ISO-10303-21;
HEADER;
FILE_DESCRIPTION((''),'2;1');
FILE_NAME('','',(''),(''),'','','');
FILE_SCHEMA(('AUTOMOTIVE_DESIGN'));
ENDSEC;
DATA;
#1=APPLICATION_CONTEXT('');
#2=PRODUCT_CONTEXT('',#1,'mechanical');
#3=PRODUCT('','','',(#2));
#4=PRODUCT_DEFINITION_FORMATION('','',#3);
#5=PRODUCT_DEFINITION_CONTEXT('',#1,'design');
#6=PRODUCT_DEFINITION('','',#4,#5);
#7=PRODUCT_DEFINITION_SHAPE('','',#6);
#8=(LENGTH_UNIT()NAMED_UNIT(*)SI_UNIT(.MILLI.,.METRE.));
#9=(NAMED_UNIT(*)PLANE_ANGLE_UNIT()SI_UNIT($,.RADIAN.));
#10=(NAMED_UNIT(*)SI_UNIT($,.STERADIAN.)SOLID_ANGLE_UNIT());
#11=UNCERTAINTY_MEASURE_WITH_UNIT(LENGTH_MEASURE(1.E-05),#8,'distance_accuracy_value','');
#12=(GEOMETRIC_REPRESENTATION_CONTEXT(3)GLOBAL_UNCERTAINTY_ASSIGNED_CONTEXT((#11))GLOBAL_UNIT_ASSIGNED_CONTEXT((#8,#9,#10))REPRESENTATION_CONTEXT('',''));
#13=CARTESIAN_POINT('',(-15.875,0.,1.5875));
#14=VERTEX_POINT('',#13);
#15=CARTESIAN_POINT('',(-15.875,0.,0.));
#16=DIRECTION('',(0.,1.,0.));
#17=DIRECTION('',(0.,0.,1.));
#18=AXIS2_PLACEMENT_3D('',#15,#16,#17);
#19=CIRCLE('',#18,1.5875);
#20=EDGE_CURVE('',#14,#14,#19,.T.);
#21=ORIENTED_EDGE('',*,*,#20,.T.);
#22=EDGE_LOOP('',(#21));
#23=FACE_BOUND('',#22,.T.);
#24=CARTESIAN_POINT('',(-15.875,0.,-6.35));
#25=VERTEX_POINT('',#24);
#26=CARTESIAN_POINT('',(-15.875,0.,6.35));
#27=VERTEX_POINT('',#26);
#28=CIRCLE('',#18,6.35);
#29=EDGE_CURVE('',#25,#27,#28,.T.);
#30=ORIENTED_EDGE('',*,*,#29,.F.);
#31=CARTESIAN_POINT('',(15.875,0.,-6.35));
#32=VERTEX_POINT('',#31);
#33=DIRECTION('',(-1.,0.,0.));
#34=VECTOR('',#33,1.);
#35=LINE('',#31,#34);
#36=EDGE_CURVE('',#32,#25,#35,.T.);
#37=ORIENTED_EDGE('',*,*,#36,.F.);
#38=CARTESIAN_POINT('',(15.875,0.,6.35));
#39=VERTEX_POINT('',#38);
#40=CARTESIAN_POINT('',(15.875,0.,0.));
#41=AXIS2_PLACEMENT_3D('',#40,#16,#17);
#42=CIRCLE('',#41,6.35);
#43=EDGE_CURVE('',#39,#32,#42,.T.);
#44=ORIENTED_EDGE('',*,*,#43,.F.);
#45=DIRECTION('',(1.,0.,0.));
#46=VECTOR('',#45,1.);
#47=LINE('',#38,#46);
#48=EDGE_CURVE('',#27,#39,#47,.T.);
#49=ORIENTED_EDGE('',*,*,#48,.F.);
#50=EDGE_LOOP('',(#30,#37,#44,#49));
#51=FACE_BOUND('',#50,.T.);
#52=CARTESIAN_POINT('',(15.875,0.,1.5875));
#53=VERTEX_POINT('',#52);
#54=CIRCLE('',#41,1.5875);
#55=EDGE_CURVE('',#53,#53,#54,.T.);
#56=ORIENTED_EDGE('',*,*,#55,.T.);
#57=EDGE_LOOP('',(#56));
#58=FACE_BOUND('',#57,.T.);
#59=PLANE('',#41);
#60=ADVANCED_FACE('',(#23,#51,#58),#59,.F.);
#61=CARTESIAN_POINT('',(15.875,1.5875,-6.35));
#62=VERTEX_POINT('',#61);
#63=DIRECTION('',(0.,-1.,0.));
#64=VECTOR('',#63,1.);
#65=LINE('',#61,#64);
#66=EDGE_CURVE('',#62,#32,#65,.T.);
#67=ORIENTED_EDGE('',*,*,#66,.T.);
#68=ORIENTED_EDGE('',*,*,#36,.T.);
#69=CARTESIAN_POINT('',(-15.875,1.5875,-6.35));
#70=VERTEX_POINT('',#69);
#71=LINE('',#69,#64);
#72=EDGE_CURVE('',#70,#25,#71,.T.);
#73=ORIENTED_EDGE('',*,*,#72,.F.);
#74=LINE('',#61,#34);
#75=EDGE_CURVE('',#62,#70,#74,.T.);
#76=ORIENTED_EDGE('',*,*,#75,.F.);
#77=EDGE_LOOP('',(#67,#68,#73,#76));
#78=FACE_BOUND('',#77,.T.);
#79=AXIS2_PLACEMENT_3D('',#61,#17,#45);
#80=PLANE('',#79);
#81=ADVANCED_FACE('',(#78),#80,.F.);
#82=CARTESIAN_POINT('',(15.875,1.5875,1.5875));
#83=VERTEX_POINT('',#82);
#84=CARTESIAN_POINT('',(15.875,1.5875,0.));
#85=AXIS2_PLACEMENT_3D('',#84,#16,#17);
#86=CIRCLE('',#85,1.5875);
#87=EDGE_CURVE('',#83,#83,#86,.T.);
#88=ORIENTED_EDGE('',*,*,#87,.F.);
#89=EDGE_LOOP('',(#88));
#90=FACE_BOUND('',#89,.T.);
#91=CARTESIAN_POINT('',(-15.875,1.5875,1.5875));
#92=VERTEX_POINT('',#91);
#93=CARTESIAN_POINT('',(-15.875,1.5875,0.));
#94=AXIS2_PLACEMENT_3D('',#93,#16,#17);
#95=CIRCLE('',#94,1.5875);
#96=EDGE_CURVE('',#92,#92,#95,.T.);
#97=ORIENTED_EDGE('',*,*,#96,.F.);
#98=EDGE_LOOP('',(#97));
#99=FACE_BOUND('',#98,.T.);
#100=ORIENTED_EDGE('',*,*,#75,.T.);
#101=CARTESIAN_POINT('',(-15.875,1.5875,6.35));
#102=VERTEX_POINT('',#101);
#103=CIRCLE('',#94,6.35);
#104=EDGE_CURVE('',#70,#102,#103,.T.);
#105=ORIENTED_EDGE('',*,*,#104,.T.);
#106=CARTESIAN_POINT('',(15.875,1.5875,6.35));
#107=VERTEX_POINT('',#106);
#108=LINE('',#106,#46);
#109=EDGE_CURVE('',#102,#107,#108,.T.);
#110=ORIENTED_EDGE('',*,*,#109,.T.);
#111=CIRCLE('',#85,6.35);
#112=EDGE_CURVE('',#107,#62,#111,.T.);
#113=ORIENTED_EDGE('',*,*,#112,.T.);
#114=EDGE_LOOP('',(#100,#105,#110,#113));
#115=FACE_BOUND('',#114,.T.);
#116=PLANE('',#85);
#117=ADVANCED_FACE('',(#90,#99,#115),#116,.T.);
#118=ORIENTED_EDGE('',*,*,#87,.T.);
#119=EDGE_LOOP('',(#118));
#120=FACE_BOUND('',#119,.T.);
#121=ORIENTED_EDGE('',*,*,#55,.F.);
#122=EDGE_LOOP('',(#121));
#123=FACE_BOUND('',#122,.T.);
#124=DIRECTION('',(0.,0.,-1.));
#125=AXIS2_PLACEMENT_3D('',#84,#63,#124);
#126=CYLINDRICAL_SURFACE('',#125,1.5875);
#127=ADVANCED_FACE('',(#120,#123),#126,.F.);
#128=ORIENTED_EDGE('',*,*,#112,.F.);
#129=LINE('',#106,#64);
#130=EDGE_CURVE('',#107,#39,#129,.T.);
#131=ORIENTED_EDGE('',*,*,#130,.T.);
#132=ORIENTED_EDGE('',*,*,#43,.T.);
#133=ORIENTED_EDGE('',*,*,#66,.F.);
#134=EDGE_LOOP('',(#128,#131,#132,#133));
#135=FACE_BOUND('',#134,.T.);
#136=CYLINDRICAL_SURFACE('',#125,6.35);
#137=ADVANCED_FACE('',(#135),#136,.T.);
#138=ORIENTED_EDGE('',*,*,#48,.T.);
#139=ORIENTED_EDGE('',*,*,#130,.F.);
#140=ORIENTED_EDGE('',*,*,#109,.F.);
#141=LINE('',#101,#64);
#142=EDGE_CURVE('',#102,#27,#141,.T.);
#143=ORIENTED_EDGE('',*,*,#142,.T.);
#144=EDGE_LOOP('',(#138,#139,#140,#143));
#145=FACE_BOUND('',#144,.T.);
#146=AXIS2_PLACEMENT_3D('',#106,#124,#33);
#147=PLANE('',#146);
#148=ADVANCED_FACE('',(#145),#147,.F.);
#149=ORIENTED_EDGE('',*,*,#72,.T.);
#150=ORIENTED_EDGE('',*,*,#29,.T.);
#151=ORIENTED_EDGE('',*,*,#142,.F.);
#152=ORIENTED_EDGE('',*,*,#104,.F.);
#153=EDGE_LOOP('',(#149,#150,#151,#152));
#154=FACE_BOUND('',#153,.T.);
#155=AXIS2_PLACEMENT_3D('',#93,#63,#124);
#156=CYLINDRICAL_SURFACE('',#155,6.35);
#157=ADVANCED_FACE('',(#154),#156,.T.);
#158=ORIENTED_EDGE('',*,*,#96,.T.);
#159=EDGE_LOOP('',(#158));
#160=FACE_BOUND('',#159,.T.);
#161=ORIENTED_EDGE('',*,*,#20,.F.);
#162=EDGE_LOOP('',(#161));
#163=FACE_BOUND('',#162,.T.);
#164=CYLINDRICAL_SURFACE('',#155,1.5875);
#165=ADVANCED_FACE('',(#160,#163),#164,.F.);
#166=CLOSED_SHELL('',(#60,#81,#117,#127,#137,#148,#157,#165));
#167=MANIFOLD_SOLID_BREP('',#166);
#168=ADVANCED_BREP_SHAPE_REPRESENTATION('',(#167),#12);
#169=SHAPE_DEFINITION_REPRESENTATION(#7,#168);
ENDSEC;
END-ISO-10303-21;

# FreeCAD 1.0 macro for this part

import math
import FreeCAD as App
import Part
import Sketcher

V = App.Vector
Q = App.Units.Quantity

doc = App.newDocument("Part")
params = doc.addObject("Spreadsheet::Sheet", "Params")
for row, (alias, value) in enumerate([
    ("sketch1_radius", "0.25 in"),
    ("sketch1_diameter", "0.125 in"),
    ("sketch1_width", "1.25 in"),
    ("pad1_length", "0.0625 in"),
], start=1):
    params.set(f"A{row}", alias)
    params.set(f"B{row}", "=" + value)
    params.setAlias(f"B{row}", alias)

body = doc.addObject("PartDesign::Body", "Body")

sketch1 = body.newObject("Sketcher::SketchObject", "Sketch")
sketch1.AttachmentSupport = (doc.getObject("XZ_Plane"), [""])
sketch1.MapMode = "FlatFace"
sketch1.addGeometry(Part.LineSegment(V(-15.875, 6.35, 0), V(15.875, 6.35, 0)), False)
sketch1.addGeometry(Part.ArcOfCircle(Part.Circle(V(15.875, 0, 0), V(0, 0, 1), 6.35), math.radians(-90), math.radians(90)), False)
sketch1.addGeometry(Part.LineSegment(V(15.875, -6.35, 0), V(-15.875, -6.35, 0)), False)
sketch1.addGeometry(Part.ArcOfCircle(Part.Circle(V(-15.875, 0, 0), V(0, 0, 1), 6.35), math.radians(90), math.radians(270)), False)
sketch1.addGeometry(Part.Circle(V(15.875, 0, 0), V(0, 0, 1), 1.5875), False)
sketch1.addGeometry(Part.Circle(V(-15.875, 0, 0), V(0, 0, 1), 1.5875), False)
sketch1.addConstraint(Sketcher.Constraint("Tangent", 0, 2, 1, 2))
sketch1.addConstraint(Sketcher.Constraint("Tangent", 1, 1, 2, 1))
sketch1.addConstraint(Sketcher.Constraint("Tangent", 2, 2, 3, 2))
sketch1.addConstraint(Sketcher.Constraint("Tangent", 3, 1, 0, 1))
sketch1.addConstraint(Sketcher.Constraint("Horizontal", 0))
sketch1.addConstraint(Sketcher.Constraint("Horizontal", 2))
sketch1.addConstraint(Sketcher.Constraint("Coincident", 4, 3, 1, 3))
sketch1.addConstraint(Sketcher.Constraint("Coincident", 5, 3, 3, 3))
sketch1.addConstraint(Sketcher.Constraint("Equal", 4, 5))
sketch1.addConstraint(Sketcher.Constraint("Symmetric", 1, 3, 3, 3, -1, 1))
sketch1.addConstraint(Sketcher.Constraint("Radius", 1, Q("0.25 in")))
sketch1.addConstraint(Sketcher.Constraint("Diameter", 4, Q("0.125 in")))
sketch1.addConstraint(Sketcher.Constraint("DistanceX", 0, 1, 0, 2, Q("1.25 in")))
sketch1.setExpression("Constraints[10]", "Params.sketch1_radius")
sketch1.setExpression("Constraints[11]", "Params.sketch1_diameter")
sketch1.setExpression("Constraints[12]", "Params.sketch1_width")
pad1 = body.newObject("PartDesign::Pad", "Pad")
pad1.Profile = sketch1
pad1.setExpression("Length", "Params.pad1_length")
pad1.Reversed = True

doc.recompute()
